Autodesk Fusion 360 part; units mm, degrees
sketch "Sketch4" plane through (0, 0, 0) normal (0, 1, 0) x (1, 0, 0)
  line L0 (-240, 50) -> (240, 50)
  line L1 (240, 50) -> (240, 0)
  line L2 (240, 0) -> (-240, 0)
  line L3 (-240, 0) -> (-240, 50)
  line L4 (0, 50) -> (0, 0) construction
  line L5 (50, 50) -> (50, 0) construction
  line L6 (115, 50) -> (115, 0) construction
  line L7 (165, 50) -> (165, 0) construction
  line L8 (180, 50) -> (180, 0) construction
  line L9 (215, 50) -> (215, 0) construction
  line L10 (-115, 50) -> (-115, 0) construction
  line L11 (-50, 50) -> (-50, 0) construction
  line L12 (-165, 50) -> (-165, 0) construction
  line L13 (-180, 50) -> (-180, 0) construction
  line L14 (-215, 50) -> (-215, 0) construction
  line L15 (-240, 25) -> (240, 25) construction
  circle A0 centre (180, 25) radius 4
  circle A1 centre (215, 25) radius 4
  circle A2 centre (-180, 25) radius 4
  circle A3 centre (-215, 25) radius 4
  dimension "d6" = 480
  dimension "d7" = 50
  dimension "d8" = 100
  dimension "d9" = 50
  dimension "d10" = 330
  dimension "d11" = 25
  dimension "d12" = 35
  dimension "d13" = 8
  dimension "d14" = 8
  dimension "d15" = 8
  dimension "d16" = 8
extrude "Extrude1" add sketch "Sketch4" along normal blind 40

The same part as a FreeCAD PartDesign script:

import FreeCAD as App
import Part
import Sketcher

V = App.Vector
Q = App.Units.Quantity


def add_polygon(sketch, points):
    """Adds a closed chain of lines whose ends are joined by coincident constraints."""
    first, n = sketch.GeometryCount, len(points)
    for a, b in zip(points, points[1:] + points[:1]):
        sketch.addGeometry(Part.LineSegment(App.Vector(*a, 0), App.Vector(*b, 0)), False)
    for i in range(n):
        sketch.addConstraint(Sketcher.Constraint("Coincident", first + i, 2, first + (i + 1) % n, 1))

doc = App.newDocument("Part")
body = doc.addObject("PartDesign::Body", "Body")

# Sketch on XZ plane
sketch1 = body.newObject("Sketcher::SketchObject", "Sketch")
sketch1.AttachmentSupport = (doc.getObject("XZ_Plane"), [""])
sketch1.MapMode = "FlatFace"
add_polygon(sketch1, [(240, -50), (-240, -50), (-240, 0), (240, 0)])  # lines 0-3
sketch1.addGeometry(Part.Circle(V(-215, -25, 0), V(0, 0, 1), 4), False)  # 4
sketch1.addGeometry(Part.Circle(V(-180, -25, 0), V(0, 0, 1), 4), False)  # 5
sketch1.addGeometry(Part.Circle(V(180, -25, 0), V(0, 0, 1), 4), False)  # 6
sketch1.addGeometry(Part.Circle(V(215, -25, 0), V(0, 0, 1), 4), False)  # 7
sketch1.addConstraint([
    Sketcher.Constraint("Horizontal", 0),
    Sketcher.Constraint("Vertical", 1),
    Sketcher.Constraint("Horizontal", 2),
    Sketcher.Constraint("Vertical", 3),
    Sketcher.Constraint("Equal", 4, 5),
    Sketcher.Constraint("Equal", 5, 6),
    Sketcher.Constraint("Equal", 6, 7),
    Sketcher.Constraint("Symmetric", 1, 2, 2, 2, -1, 1),
    Sketcher.Constraint("Symmetric", 5, 3, 6, 3, -2),
    Sketcher.Constraint("Symmetric", 4, 3, 7, 3, -2),
    Sketcher.Constraint("Horizontal", 4, 3, 5, 3),
    Sketcher.Constraint("Diameter", 4, Q("8 mm")),
    Sketcher.Constraint("DistanceX", 0, 2, 0, 1, Q("480 mm")),
    Sketcher.Constraint("DistanceY", 1, 1, 1, 2, Q("50 mm")),
    Sketcher.Constraint("DistanceY", 4, 3, -1, 1, Q("25 mm")),
    Sketcher.Constraint("DistanceX", 4, 3, 5, 3, Q("35 mm")),
    Sketcher.Constraint("DistanceX", 0, 2, 4, 3, Q("25 mm")),
])
pad1 = body.newObject("PartDesign::Pad", "Pad")
pad1.Profile = sketch1
pad1.Length = 40
pad1.Reversed = True

doc.recompute()
